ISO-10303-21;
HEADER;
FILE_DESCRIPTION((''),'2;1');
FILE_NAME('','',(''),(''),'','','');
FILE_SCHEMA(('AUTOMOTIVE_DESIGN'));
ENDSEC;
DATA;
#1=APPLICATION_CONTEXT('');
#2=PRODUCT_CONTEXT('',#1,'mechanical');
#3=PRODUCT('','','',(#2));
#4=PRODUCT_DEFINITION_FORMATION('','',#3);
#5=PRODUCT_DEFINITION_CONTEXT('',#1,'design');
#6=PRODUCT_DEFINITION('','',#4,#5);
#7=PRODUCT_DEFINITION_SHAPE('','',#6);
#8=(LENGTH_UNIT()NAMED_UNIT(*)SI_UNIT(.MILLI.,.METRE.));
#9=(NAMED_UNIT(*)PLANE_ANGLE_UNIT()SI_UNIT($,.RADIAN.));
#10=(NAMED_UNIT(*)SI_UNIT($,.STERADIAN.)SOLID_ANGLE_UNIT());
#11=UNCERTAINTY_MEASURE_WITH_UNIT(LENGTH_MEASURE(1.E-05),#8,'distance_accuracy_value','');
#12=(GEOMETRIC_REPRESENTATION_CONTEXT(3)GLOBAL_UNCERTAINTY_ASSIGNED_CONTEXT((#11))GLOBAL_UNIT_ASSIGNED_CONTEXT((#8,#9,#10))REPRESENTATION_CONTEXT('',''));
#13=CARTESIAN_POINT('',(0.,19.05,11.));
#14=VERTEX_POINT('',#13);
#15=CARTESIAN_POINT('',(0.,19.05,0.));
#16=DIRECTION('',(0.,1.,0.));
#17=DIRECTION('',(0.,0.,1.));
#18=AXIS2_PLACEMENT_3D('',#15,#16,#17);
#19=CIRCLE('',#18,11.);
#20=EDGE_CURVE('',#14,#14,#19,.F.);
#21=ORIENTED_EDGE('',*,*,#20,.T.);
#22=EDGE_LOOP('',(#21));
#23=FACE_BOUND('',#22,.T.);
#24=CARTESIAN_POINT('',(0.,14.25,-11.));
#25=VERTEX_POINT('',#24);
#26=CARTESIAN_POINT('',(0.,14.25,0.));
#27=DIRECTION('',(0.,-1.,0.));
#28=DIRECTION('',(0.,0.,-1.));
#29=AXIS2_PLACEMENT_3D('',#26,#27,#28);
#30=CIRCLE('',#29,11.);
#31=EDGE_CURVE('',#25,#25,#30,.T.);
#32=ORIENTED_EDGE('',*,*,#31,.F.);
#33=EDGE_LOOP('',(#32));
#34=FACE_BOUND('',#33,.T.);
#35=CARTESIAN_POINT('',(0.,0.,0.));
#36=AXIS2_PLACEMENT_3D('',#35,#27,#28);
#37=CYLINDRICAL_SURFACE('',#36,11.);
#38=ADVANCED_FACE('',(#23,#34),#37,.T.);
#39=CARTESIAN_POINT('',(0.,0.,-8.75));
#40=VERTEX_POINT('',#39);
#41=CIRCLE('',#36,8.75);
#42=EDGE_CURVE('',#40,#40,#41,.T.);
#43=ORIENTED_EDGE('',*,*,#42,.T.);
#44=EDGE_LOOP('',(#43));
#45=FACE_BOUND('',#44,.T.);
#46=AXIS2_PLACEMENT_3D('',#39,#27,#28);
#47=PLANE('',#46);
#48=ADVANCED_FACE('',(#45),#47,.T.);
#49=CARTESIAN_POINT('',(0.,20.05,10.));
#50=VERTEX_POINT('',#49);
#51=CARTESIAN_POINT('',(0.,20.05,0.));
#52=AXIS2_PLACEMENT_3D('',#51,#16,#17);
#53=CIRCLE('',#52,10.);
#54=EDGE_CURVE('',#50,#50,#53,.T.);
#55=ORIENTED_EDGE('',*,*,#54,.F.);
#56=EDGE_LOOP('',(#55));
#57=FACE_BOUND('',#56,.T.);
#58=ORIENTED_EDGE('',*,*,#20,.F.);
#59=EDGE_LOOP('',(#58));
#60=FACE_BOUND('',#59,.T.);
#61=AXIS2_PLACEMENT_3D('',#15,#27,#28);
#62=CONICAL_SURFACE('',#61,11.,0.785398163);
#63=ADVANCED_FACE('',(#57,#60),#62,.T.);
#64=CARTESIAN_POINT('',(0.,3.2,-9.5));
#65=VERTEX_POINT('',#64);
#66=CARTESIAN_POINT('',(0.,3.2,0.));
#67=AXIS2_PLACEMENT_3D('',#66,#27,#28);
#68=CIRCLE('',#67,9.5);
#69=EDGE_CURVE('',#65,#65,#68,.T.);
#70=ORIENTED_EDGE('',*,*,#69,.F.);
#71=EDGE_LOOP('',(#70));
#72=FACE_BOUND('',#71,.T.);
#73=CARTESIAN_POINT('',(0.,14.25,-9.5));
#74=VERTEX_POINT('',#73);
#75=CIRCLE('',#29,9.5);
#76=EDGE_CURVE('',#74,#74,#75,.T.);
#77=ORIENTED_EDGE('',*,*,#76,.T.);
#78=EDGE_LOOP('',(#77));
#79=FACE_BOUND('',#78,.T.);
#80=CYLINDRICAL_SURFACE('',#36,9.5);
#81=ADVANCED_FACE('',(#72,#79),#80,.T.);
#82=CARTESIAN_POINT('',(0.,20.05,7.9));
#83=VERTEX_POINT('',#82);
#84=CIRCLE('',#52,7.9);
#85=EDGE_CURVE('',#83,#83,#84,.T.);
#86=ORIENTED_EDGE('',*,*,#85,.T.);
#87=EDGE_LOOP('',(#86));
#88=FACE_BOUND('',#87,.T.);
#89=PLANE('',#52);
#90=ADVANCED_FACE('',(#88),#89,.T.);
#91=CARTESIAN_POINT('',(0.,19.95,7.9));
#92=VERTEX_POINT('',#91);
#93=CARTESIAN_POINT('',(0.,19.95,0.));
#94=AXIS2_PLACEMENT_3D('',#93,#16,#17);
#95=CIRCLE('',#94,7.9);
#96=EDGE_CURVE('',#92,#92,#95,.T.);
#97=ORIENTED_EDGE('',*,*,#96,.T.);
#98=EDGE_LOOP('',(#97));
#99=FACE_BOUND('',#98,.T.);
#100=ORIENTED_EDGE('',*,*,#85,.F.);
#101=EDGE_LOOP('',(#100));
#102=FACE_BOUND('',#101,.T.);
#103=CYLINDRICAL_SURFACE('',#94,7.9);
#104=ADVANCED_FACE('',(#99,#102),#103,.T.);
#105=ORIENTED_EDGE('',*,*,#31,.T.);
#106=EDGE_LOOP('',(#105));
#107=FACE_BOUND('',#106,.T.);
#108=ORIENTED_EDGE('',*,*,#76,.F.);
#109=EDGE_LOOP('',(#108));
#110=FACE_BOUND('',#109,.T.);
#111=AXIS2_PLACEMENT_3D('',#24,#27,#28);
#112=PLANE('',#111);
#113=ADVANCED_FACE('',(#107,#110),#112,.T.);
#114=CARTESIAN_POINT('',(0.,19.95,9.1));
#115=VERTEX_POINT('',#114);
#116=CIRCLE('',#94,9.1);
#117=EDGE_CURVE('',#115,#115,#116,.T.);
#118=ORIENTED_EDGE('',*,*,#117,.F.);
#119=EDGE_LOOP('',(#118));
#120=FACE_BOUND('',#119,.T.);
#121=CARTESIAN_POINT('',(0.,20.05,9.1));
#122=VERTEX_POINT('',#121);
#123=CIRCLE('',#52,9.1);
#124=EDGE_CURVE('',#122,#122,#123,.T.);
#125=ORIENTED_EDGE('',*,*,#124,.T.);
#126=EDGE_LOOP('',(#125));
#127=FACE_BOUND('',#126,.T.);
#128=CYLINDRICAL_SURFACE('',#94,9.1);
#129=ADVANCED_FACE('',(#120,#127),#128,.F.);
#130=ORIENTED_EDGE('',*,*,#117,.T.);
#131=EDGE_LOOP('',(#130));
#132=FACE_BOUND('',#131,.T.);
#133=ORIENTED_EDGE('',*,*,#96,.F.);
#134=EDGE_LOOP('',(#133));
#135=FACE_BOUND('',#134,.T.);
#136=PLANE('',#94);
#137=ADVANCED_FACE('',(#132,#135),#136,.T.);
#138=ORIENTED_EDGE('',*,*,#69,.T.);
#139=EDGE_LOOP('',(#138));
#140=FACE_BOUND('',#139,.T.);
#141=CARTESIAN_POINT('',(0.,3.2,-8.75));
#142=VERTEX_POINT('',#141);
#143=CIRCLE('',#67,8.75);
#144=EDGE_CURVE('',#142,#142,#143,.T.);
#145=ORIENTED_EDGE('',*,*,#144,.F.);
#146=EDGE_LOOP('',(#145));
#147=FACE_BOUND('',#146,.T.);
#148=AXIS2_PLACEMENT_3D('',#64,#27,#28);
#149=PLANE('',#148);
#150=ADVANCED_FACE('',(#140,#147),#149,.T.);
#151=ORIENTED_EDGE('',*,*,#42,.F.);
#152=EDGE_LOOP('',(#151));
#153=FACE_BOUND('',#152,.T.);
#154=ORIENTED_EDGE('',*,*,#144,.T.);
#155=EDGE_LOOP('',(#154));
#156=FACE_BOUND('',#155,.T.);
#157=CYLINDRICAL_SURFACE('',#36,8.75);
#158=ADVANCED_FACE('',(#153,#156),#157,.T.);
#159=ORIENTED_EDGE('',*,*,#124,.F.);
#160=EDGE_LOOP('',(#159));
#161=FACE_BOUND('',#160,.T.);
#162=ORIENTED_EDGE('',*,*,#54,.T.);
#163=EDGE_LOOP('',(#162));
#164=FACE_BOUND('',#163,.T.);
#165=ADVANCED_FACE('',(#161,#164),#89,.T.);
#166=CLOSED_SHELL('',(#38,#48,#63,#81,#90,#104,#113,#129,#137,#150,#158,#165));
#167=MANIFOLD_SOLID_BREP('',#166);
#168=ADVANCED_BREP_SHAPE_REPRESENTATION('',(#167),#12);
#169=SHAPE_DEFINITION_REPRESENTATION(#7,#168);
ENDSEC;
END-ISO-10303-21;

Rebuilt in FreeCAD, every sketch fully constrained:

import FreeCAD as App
import Part
import Sketcher

V = App.Vector


def edges_at(feature, points):
    """Names of the edges that pass closest to the given points."""
    edges = feature.Shape.Edges
    near = lambda p: min(range(len(edges)), key=lambda i: edges[i].distToShape(Part.Vertex(*p))[0])
    return sorted({f"Edge{near(p) + 1}" for p in points})


def add_polygon(sketch, points):
    """Adds a closed chain of lines whose ends are joined by coincident constraints."""
    first, n = sketch.GeometryCount, len(points)
    for a, b in zip(points, points[1:] + points[:1]):
        sketch.addGeometry(Part.LineSegment(App.Vector(*a, 0), App.Vector(*b, 0)), False)
    for i in range(n):
        sketch.addConstraint(Sketcher.Constraint("Coincident", first + i, 2, first + (i + 1) % n, 1))

doc = App.newDocument("Part")
body = doc.addObject("PartDesign::Body", "Body")

# Sketch on YZ plane
sketch1 = doc.addObject("Sketcher::SketchObject", "Sketch")
body.addObject(sketch1)
sketch1.AttachmentSupport = (doc.YZ_Plane, [""])
sketch1.MapMode = "FlatFace"
add_polygon(sketch1, [(20.1, -11), (20.1, 0), (0, 0), (0, -8.8), (3.2, -8.8), (3.2, -9.5), (14.2, -9.5), (14.2, -11)])  # lines 0-7
sketch1.addConstraint([
    Sketcher.Constraint("Vertical", 0),
    Sketcher.Constraint("Horizontal", 1),
    Sketcher.Constraint("Vertical", 2),
    Sketcher.Constraint("Horizontal", 3),
    Sketcher.Constraint("Vertical", 4),
    Sketcher.Constraint("Horizontal", 5),
    Sketcher.Constraint("Vertical", 6),
    Sketcher.Constraint("Horizontal", 7),
    Sketcher.Constraint("Coincident", 1, 2, -1, 1),
    Sketcher.Constraint("DistanceY", 0, 1, 0, 2, 11.0),
    Sketcher.Constraint("DistanceX", 3, 1, 3, 2, 3.2),
    Sketcher.Constraint("DistanceX", 7, 1, 7, 2, 5.8),
    Sketcher.Constraint("DistanceY", 6, 2, 6, 1, 1.5),
    Sketcher.Constraint("DistanceX", 1, 2, 1, 1, 20.05),
    Sketcher.Constraint("DistanceY", 2, 2, 2, 1, 8.75),
])
revolution = doc.addObject("PartDesign::Revolution", "Revolution")
body.addObject(revolution)
revolution.Profile = sketch1
revolution.ReferenceAxis = (sketch1, ["H_Axis"])
revolution.Angle = 360

# Sketch on XZ plane
sketch2 = doc.addObject("Sketcher::SketchObject", "Sketch001")
body.addObject(sketch2)
sketch2.AttachmentSupport = (doc.XZ_Plane, [""])
sketch2.MapMode = "FlatFace"
sketch2.AttachmentOffset = App.Placement(V(0, 0, -20.05), App.Rotation())
sketch2.addGeometry([
    Part.Circle(V(0, 0, 0), V(0, 0, 1), 9),
    Part.Circle(V(0, 0, 0), V(0, 0, 1), 8),
], False)
sketch2.addConstraint([
    Sketcher.Constraint("Coincident", 0, 3, -1, 1),
    Sketcher.Constraint("Coincident", 1, 3, -1, 1),
    Sketcher.Constraint("Diameter", 0, 18.2),
    Sketcher.Constraint("Diameter", 1, 15.8),
])
pocket1 = doc.addObject("PartDesign::Pocket", "Pocket")
body.addObject(pocket1)
pocket1.Profile = sketch2
pocket1.Length = 0.1
pocket1.Reversed = True
doc.recompute()

chamfer = doc.addObject("PartDesign::Chamfer", "Chamfer")
body.addObject(chamfer)
chamfer.Base = (pocket1, edges_at(pocket1, [(0, 20.05, 11)]))
chamfer.Size = 1

doc.recompute()
